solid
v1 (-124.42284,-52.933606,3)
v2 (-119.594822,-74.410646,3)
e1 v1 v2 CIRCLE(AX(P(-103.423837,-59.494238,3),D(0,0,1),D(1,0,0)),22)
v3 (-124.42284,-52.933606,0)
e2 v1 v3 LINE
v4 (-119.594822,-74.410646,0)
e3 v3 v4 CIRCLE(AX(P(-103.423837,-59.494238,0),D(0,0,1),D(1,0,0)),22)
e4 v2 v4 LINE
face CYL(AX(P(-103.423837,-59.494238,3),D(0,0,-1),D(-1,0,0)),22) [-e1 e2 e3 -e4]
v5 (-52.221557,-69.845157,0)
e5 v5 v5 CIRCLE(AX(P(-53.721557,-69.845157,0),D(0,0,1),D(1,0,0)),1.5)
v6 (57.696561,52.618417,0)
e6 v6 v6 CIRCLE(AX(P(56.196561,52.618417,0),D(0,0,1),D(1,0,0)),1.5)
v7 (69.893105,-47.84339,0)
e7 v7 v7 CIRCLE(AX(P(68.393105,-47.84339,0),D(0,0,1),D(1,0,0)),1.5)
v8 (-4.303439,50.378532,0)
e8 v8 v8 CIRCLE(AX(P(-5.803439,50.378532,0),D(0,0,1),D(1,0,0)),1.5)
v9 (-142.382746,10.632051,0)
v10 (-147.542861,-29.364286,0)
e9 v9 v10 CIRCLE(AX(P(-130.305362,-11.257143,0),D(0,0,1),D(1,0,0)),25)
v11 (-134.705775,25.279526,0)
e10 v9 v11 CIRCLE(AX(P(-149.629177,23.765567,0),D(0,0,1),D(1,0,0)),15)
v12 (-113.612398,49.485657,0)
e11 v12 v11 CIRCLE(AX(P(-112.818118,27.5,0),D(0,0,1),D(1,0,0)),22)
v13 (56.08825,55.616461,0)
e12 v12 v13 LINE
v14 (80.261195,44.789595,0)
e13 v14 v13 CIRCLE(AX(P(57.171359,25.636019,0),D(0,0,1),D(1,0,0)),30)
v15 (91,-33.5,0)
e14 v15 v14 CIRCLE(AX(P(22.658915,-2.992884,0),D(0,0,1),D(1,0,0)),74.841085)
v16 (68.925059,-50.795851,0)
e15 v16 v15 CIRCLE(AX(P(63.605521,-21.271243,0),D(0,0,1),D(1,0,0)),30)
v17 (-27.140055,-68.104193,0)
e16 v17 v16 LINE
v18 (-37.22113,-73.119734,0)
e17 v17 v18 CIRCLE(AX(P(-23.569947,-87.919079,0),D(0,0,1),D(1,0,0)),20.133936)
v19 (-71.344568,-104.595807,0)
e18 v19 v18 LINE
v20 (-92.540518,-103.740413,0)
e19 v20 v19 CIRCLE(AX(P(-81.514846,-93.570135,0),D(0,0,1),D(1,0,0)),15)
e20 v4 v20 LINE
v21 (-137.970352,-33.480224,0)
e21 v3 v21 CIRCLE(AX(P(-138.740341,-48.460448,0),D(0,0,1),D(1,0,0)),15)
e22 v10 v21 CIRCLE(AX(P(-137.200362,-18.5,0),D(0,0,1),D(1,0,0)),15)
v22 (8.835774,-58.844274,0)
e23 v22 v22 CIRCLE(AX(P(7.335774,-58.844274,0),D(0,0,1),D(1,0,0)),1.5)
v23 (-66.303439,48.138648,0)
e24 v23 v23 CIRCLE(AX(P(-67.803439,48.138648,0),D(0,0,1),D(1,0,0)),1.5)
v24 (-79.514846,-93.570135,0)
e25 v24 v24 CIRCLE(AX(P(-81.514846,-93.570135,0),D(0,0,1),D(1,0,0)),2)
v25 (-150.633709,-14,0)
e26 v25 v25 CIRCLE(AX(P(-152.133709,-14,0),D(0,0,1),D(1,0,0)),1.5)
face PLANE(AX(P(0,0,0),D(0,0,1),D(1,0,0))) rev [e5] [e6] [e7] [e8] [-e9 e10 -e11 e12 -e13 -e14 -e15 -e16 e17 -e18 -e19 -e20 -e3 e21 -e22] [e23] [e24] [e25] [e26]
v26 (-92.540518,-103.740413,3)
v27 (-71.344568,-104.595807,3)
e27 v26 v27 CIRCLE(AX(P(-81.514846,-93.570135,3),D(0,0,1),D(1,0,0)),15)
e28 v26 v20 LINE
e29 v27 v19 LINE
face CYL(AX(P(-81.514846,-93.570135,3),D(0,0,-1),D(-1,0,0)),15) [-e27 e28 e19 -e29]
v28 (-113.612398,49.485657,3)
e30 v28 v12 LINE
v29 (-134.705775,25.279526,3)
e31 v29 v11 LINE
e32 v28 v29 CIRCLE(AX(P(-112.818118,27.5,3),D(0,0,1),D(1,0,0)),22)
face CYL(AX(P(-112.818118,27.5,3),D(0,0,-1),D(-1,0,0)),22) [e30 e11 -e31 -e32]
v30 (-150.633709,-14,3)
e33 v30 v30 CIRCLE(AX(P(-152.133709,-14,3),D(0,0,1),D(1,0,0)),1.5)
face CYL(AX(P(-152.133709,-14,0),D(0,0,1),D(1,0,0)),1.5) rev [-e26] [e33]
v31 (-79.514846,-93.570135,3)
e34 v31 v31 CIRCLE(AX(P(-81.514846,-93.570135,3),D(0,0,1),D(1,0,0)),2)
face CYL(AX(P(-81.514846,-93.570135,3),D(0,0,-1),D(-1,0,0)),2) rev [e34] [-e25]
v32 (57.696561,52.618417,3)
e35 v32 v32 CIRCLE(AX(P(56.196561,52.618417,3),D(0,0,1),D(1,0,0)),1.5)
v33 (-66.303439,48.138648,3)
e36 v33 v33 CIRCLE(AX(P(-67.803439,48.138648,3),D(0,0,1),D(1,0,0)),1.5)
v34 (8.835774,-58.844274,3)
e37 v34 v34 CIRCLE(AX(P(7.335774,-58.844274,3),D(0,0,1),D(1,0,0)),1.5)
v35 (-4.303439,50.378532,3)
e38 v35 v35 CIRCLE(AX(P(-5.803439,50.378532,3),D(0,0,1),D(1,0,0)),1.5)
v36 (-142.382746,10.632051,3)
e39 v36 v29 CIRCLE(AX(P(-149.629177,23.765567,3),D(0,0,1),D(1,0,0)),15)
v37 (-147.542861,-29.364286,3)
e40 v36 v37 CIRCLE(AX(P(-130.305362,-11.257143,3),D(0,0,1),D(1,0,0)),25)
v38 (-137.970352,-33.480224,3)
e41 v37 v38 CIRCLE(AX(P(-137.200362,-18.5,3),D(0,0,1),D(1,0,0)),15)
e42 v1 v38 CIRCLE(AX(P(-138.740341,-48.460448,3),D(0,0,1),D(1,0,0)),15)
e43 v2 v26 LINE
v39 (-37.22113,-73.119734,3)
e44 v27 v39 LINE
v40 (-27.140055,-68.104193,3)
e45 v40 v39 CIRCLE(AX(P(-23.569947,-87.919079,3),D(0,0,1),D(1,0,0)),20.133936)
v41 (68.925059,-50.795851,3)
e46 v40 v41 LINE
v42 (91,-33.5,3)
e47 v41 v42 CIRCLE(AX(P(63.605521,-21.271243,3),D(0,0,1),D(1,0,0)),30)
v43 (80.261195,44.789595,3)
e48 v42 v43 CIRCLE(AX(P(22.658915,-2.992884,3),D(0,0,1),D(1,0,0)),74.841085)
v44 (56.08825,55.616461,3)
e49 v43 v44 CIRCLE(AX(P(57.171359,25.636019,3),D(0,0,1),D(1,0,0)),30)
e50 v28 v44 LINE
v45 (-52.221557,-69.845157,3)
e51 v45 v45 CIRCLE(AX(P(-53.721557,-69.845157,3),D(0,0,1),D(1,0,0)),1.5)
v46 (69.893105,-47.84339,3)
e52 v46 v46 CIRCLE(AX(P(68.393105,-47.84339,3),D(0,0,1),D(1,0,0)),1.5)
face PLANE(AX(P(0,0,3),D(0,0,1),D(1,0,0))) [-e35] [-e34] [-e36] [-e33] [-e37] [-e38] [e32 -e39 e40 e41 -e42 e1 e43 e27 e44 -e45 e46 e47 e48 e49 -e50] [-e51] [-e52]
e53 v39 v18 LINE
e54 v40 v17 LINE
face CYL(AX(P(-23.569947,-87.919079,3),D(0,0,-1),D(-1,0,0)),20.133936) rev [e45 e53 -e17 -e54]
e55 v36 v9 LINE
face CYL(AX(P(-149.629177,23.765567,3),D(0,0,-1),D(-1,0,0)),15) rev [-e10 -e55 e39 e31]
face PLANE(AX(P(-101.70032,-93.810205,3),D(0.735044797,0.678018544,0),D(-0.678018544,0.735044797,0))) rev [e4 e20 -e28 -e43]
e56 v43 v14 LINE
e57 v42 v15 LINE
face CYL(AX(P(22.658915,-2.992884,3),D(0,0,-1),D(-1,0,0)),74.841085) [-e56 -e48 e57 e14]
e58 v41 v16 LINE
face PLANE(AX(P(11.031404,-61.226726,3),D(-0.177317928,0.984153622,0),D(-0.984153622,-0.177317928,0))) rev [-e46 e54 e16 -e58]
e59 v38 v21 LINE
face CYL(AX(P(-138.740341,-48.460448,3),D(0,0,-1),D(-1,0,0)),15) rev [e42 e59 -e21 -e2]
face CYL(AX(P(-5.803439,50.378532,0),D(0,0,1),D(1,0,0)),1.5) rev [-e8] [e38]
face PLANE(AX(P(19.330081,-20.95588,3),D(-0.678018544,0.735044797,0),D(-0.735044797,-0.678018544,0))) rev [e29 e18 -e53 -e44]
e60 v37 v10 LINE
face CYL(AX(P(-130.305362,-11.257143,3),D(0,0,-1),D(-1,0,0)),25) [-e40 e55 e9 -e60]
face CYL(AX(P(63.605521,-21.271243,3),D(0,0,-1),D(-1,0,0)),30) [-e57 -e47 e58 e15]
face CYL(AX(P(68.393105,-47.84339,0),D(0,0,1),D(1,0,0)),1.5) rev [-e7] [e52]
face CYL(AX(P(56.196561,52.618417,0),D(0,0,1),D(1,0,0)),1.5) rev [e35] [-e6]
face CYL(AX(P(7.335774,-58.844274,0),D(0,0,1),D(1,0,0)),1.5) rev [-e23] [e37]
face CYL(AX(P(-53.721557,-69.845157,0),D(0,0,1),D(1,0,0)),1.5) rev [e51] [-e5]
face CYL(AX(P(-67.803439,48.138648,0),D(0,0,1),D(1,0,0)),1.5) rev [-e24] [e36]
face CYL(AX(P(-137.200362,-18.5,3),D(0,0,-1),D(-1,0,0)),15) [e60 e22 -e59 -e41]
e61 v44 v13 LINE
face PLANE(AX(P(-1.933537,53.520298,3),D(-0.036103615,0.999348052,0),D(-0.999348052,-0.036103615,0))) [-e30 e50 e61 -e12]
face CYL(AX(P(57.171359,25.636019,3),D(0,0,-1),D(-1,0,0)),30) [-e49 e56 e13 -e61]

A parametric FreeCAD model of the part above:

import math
import FreeCAD as App
import Part
import Sketcher

V = App.Vector
Q = App.Units.Quantity

doc = App.newDocument("Part")
body = doc.addObject("PartDesign::Body", "Body")

sketch1 = body.newObject("Sketcher::SketchObject", "Sketch")
sketch1.AttachmentSupport = (doc.getObject("XY_Plane"), [""])
sketch1.MapMode = "FlatFace"
sketch1.addGeometry([
    Part.ArcOfCircle(Part.Circle(V(-138.740341, -48.460448, 0), V(0, 0, 1), 15), math.radians(-17.350155), math.radians(87.057563)),
    Part.ArcOfCircle(Part.Circle(V(-103.423837, -59.494238, 0), V(0, 0, 1), 22), math.radians(162.649844), math.radians(222.688998)),
    Part.LineSegment(V(-119.594822, -74.410646, 0), V(-92.540518, -103.740413, 0)),
    Part.ArcOfCircle(Part.Circle(V(-81.514846, -93.570135, 0), V(0, 0, 1), 15), math.radians(-137.311002), math.radians(-47.311002)),
    Part.LineSegment(V(-71.344568, -104.595807, 0), V(-37.22113, -73.119734, 0)),
    Part.ArcOfCircle(Part.Circle(V(-23.569947, -87.919079, 0), V(0, 0, 1), 20.133936), math.radians(100.213575), math.radians(132.688998)),
    Part.LineSegment(V(-27.140055, -68.104193, 0), V(68.925059, -50.795851, 0)),
    Part.ArcOfCircle(Part.Circle(V(63.605521, -21.271243, 0), V(0, 0, 1), 30), math.radians(-79.786425), math.radians(-24.055744)),
    Part.ArcOfCircle(Part.Circle(V(22.658915, -2.992884, 0), V(0, 0, 1), 74.841085), math.radians(-24.055744), math.radians(39.676525)),
    Part.ArcOfCircle(Part.Circle(V(57.171359, 25.636019, 0), V(0, 0, 1), 30), math.radians(39.676525), math.radians(92.069034)),
    Part.LineSegment(V(56.08825, 55.616461, 0), V(-113.612397, 49.485657, 0)),
    Part.ArcOfCircle(Part.Circle(V(-112.818118, 27.5, 0), V(0, 0, 1), 22), math.radians(92.069032), math.radians(185.792763)),
    Part.ArcOfCircle(Part.Circle(V(-149.629177, 23.765567, 0), V(0, 0, 1), 15), math.radians(-61.112239), math.radians(5.792763)),
    Part.ArcOfCircle(Part.Circle(V(-130.305362, -11.257143, 0), V(0, 0, 1), 25), math.radians(118.887761), math.radians(226.40946)),
    Part.ArcOfCircle(Part.Circle(V(-137.200362, -18.5, 0), V(0, 0, 1), 15), math.radians(-133.59054), math.radians(-92.942437)),
    Part.Circle(V(-81.514846, -93.570135, 0), V(0, 0, 1), 2),
], False)
sketch1.addConstraint([
    Sketcher.Constraint("Coincident", 0, 1, 1, 1),
    Sketcher.Constraint("Coincident", 1, 2, 2, 1),
    Sketcher.Constraint("Coincident", 2, 2, 3, 1),
    Sketcher.Constraint("Coincident", 3, 2, 4, 1),
    Sketcher.Constraint("Coincident", 4, 2, 5, 2),
    Sketcher.Constraint("Coincident", 5, 1, 6, 1),
    Sketcher.Constraint("Coincident", 6, 2, 7, 1),
    Sketcher.Constraint("Coincident", 7, 2, 8, 1),
    Sketcher.Constraint("Coincident", 8, 2, 9, 1),
    Sketcher.Constraint("Coincident", 9, 2, 10, 1),
    Sketcher.Constraint("Coincident", 10, 2, 11, 1),
    Sketcher.Constraint("Coincident", 11, 2, 12, 2),
    Sketcher.Constraint("Coincident", 12, 1, 13, 1),
    Sketcher.Constraint("Coincident", 13, 2, 14, 1),
    Sketcher.Constraint("Coincident", 14, 2, 0, 2),
    Sketcher.Constraint("Coincident", 15, 3, 3, 3),
    Sketcher.Constraint("Diameter", 15, Q("4 mm")),
    Sketcher.Constraint("Radius", 0, Q("15 mm")),
    Sketcher.Constraint("Radius", 1, Q("22 mm")),
    Sketcher.Constraint("Radius", 3, Q("15 mm")),
    Sketcher.Constraint("Radius", 7, Q("30 mm")),
    Sketcher.Constraint("Radius", 9, Q("30 mm")),
    Sketcher.Constraint("Radius", 11, Q("22 mm")),
    Sketcher.Constraint("Radius", 12, Q("15 mm")),
    Sketcher.Constraint("Radius", 13, Q("25 mm")),
    Sketcher.Constraint("Radius", 14, Q("15 mm")),
    Sketcher.Constraint("DistanceX", -1, 1, 7, 2, Q("91 mm")),
    Sketcher.Constraint("DistanceY", 14, 3, 11, 3, Q("46 mm")),
    Sketcher.Constraint("DistanceY", -1, 1, 11, 3, Q("27.5 mm")),
    Sketcher.Constraint("DistanceY", 7, 2, -1, 1, Q("33.5 mm")),
    Sketcher.Constraint("Radius", 5, Q("20.133936 mm")),
    Sketcher.Constraint("Radius", 8, Q("74.841085 mm")),
    Sketcher.Constraint("DistanceX", 14, 3, 13, 3, Q("6.895 mm")),
    Sketcher.Constraint("DistanceX", 3, 3, 5, 3, Q("57.944898 mm")),
    Sketcher.Constraint("DistanceY", 5, 3, 9, 3, Q("113.555099 mm")),
    Sketcher.Constraint("DistanceY", 3, 3, 12, 3, Q("117.335702 mm")),
    Sketcher.Constraint("DistanceX", 0, 3, 0, 1, Q("14.317502 mm")),
    Sketcher.Constraint("DistanceY", 3, 3, 4, 2, Q("20.450401 mm")),
    Sketcher.Constraint("DistanceX", 9, 3, 6, 2, Q("11.7537 mm")),
    Sketcher.Constraint("DistanceY", 13, 3, 10, 2, Q("60.7428 mm")),
    Sketcher.Constraint("DistanceX", 12, 3, 11, 2, Q("14.923402 mm")),
    Sketcher.Constraint("DistanceX", 13, 2, 14, 3, Q("10.342499 mm")),
    Sketcher.Constraint("Distance", 6, Q("97.611909 mm")),
    Sketcher.Constraint("DistanceX", 0, 3, -1, 1, Q("138.740341 mm")),
    Sketcher.Constraint("DistanceY", 0, 3, -1, 1, Q("48.460448 mm")),
    Sketcher.Constraint("DistanceY", 1, 3, -1, 1, Q("59.494238 mm")),
    Sketcher.Constraint("DistanceY", 5, 3, -1, 1, Q("87.919079 mm")),
    Sketcher.Constraint("DistanceX", -1, 1, 7, 3, Q("63.605521 mm")),
    Sketcher.Constraint("DistanceX", -1, 1, 9, 3, Q("57.171359 mm")),
    Sketcher.Constraint("DistanceX", 11, 3, -1, 1, Q("112.818118 mm")),
    Sketcher.Constraint("DistanceX", 4, 2, -1, 1, Q("37.22113 mm")),
    Sketcher.Constraint("DistanceX", -1, 1, 9, 2, Q("56.08825 mm")),
    Sketcher.Constraint("DistanceY", -1, 1, 12, 1, Q("10.632051 mm")),
    Sketcher.Constraint("DistanceX", 14, 2, -1, 1, Q("137.970352 mm")),
    Sketcher.Constraint("DistanceY", 1, 2, 0, 1, Q("21.47704 mm")),
    Sketcher.Constraint("DistanceX", 2, 2, 3, 3, Q("11.025672 mm")),
    Sketcher.Constraint("DistanceX", 3, 3, 3, 2, Q("10.170278 mm")),
    Sketcher.Constraint("DistanceX", 8, 3, 8, 2, Q("57.60228 mm")),
])
pad1 = body.newObject("PartDesign::Pad", "Pad")
pad1.Profile = sketch1
pad1.Length = 3

sketch2 = body.newObject("Sketcher::SketchObject", "Sketch001")
sketch2.AttachmentSupport = (doc.getObject("XY_Plane"), [""])
sketch2.MapMode = "FlatFace"
sketch2.AttachmentOffset = App.Placement(V(0, 0, 3), App.Rotation())
sketch2.addGeometry([
    Part.Circle(V(56.196561, 52.618417, 0), V(0, 0, 1), 1.5),
    Part.Circle(V(-5.803439, 50.378532, 0), V(0, 0, 1), 1.5),
    Part.Circle(V(-67.803439, 48.138648, 0), V(0, 0, 1), 1.5),
    Part.Circle(V(68.393105, -47.84339, 0), V(0, 0, 1), 1.5),
    Part.Circle(V(7.335774, -58.844274, 0), V(0, 0, 1), 1.5),
    Part.Circle(V(-152.133709, -14, 0), V(0, 0, 1), 1.5),
    Part.Circle(V(-53.721557, -69.845157, 0), V(0, 0, 1), 1.5),
], False)
sketch2.addConstraint([
    Sketcher.Constraint("Equal", 0, 1),
    Sketcher.Constraint("Equal", 1, 2),
    Sketcher.Constraint("Equal", 2, 3),
    Sketcher.Constraint("Equal", 3, 4),
    Sketcher.Constraint("Equal", 4, 5),
    Sketcher.Constraint("Equal", 5, 6),
    Sketcher.Constraint("Diameter", 0, Q("3 mm")),
    Sketcher.Constraint("DistanceY", 5, 3, -1, 1, Q("14 mm")),
    Sketcher.Constraint("DistanceX", 1, 3, 0, 3, Q("62 mm")),
    Sketcher.Constraint("DistanceX", 2, 3, 1, 3, Q("62 mm")),
    Sketcher.Constraint("DistanceX", -1, 1, 0, 3, Q("56.196561 mm")),
    Sketcher.Constraint("DistanceY", 3, 3, -1, 1, Q("47.84339 mm")),
    Sketcher.Constraint("DistanceX", 5, 3, -1, 1, Q("152.133709 mm")),
    Sketcher.Constraint("DistanceY", 2, 3, 0, 3, Q("4.479769 mm")),
    Sketcher.Constraint("DistanceY", 3, 3, 2, 3, Q("95.982038 mm")),
    Sketcher.Constraint("DistanceX", 4, 3, 3, 3, Q("61.057331 mm")),
    Sketcher.Constraint("DistanceY", 4, 3, 0, 3, Q("111.462691 mm")),
    Sketcher.Constraint("DistanceX", 6, 3, 4, 3, Q("61.057331 mm")),
    Sketcher.Constraint("DistanceY", 6, 3, 1, 3, Q("120.22369 mm")),
    Sketcher.Constraint("DistanceY", -1, 1, 1, 3, Q("50.378532 mm")),
    Sketcher.Constraint("DistanceX", -1, 1, 3, 3, Q("68.393105 mm")),
])
pocket1 = body.newObject("PartDesign::Pocket", "Pocket")
pocket1.Profile = sketch2
pocket1.Type = "ThroughAll"

doc.recompute()
